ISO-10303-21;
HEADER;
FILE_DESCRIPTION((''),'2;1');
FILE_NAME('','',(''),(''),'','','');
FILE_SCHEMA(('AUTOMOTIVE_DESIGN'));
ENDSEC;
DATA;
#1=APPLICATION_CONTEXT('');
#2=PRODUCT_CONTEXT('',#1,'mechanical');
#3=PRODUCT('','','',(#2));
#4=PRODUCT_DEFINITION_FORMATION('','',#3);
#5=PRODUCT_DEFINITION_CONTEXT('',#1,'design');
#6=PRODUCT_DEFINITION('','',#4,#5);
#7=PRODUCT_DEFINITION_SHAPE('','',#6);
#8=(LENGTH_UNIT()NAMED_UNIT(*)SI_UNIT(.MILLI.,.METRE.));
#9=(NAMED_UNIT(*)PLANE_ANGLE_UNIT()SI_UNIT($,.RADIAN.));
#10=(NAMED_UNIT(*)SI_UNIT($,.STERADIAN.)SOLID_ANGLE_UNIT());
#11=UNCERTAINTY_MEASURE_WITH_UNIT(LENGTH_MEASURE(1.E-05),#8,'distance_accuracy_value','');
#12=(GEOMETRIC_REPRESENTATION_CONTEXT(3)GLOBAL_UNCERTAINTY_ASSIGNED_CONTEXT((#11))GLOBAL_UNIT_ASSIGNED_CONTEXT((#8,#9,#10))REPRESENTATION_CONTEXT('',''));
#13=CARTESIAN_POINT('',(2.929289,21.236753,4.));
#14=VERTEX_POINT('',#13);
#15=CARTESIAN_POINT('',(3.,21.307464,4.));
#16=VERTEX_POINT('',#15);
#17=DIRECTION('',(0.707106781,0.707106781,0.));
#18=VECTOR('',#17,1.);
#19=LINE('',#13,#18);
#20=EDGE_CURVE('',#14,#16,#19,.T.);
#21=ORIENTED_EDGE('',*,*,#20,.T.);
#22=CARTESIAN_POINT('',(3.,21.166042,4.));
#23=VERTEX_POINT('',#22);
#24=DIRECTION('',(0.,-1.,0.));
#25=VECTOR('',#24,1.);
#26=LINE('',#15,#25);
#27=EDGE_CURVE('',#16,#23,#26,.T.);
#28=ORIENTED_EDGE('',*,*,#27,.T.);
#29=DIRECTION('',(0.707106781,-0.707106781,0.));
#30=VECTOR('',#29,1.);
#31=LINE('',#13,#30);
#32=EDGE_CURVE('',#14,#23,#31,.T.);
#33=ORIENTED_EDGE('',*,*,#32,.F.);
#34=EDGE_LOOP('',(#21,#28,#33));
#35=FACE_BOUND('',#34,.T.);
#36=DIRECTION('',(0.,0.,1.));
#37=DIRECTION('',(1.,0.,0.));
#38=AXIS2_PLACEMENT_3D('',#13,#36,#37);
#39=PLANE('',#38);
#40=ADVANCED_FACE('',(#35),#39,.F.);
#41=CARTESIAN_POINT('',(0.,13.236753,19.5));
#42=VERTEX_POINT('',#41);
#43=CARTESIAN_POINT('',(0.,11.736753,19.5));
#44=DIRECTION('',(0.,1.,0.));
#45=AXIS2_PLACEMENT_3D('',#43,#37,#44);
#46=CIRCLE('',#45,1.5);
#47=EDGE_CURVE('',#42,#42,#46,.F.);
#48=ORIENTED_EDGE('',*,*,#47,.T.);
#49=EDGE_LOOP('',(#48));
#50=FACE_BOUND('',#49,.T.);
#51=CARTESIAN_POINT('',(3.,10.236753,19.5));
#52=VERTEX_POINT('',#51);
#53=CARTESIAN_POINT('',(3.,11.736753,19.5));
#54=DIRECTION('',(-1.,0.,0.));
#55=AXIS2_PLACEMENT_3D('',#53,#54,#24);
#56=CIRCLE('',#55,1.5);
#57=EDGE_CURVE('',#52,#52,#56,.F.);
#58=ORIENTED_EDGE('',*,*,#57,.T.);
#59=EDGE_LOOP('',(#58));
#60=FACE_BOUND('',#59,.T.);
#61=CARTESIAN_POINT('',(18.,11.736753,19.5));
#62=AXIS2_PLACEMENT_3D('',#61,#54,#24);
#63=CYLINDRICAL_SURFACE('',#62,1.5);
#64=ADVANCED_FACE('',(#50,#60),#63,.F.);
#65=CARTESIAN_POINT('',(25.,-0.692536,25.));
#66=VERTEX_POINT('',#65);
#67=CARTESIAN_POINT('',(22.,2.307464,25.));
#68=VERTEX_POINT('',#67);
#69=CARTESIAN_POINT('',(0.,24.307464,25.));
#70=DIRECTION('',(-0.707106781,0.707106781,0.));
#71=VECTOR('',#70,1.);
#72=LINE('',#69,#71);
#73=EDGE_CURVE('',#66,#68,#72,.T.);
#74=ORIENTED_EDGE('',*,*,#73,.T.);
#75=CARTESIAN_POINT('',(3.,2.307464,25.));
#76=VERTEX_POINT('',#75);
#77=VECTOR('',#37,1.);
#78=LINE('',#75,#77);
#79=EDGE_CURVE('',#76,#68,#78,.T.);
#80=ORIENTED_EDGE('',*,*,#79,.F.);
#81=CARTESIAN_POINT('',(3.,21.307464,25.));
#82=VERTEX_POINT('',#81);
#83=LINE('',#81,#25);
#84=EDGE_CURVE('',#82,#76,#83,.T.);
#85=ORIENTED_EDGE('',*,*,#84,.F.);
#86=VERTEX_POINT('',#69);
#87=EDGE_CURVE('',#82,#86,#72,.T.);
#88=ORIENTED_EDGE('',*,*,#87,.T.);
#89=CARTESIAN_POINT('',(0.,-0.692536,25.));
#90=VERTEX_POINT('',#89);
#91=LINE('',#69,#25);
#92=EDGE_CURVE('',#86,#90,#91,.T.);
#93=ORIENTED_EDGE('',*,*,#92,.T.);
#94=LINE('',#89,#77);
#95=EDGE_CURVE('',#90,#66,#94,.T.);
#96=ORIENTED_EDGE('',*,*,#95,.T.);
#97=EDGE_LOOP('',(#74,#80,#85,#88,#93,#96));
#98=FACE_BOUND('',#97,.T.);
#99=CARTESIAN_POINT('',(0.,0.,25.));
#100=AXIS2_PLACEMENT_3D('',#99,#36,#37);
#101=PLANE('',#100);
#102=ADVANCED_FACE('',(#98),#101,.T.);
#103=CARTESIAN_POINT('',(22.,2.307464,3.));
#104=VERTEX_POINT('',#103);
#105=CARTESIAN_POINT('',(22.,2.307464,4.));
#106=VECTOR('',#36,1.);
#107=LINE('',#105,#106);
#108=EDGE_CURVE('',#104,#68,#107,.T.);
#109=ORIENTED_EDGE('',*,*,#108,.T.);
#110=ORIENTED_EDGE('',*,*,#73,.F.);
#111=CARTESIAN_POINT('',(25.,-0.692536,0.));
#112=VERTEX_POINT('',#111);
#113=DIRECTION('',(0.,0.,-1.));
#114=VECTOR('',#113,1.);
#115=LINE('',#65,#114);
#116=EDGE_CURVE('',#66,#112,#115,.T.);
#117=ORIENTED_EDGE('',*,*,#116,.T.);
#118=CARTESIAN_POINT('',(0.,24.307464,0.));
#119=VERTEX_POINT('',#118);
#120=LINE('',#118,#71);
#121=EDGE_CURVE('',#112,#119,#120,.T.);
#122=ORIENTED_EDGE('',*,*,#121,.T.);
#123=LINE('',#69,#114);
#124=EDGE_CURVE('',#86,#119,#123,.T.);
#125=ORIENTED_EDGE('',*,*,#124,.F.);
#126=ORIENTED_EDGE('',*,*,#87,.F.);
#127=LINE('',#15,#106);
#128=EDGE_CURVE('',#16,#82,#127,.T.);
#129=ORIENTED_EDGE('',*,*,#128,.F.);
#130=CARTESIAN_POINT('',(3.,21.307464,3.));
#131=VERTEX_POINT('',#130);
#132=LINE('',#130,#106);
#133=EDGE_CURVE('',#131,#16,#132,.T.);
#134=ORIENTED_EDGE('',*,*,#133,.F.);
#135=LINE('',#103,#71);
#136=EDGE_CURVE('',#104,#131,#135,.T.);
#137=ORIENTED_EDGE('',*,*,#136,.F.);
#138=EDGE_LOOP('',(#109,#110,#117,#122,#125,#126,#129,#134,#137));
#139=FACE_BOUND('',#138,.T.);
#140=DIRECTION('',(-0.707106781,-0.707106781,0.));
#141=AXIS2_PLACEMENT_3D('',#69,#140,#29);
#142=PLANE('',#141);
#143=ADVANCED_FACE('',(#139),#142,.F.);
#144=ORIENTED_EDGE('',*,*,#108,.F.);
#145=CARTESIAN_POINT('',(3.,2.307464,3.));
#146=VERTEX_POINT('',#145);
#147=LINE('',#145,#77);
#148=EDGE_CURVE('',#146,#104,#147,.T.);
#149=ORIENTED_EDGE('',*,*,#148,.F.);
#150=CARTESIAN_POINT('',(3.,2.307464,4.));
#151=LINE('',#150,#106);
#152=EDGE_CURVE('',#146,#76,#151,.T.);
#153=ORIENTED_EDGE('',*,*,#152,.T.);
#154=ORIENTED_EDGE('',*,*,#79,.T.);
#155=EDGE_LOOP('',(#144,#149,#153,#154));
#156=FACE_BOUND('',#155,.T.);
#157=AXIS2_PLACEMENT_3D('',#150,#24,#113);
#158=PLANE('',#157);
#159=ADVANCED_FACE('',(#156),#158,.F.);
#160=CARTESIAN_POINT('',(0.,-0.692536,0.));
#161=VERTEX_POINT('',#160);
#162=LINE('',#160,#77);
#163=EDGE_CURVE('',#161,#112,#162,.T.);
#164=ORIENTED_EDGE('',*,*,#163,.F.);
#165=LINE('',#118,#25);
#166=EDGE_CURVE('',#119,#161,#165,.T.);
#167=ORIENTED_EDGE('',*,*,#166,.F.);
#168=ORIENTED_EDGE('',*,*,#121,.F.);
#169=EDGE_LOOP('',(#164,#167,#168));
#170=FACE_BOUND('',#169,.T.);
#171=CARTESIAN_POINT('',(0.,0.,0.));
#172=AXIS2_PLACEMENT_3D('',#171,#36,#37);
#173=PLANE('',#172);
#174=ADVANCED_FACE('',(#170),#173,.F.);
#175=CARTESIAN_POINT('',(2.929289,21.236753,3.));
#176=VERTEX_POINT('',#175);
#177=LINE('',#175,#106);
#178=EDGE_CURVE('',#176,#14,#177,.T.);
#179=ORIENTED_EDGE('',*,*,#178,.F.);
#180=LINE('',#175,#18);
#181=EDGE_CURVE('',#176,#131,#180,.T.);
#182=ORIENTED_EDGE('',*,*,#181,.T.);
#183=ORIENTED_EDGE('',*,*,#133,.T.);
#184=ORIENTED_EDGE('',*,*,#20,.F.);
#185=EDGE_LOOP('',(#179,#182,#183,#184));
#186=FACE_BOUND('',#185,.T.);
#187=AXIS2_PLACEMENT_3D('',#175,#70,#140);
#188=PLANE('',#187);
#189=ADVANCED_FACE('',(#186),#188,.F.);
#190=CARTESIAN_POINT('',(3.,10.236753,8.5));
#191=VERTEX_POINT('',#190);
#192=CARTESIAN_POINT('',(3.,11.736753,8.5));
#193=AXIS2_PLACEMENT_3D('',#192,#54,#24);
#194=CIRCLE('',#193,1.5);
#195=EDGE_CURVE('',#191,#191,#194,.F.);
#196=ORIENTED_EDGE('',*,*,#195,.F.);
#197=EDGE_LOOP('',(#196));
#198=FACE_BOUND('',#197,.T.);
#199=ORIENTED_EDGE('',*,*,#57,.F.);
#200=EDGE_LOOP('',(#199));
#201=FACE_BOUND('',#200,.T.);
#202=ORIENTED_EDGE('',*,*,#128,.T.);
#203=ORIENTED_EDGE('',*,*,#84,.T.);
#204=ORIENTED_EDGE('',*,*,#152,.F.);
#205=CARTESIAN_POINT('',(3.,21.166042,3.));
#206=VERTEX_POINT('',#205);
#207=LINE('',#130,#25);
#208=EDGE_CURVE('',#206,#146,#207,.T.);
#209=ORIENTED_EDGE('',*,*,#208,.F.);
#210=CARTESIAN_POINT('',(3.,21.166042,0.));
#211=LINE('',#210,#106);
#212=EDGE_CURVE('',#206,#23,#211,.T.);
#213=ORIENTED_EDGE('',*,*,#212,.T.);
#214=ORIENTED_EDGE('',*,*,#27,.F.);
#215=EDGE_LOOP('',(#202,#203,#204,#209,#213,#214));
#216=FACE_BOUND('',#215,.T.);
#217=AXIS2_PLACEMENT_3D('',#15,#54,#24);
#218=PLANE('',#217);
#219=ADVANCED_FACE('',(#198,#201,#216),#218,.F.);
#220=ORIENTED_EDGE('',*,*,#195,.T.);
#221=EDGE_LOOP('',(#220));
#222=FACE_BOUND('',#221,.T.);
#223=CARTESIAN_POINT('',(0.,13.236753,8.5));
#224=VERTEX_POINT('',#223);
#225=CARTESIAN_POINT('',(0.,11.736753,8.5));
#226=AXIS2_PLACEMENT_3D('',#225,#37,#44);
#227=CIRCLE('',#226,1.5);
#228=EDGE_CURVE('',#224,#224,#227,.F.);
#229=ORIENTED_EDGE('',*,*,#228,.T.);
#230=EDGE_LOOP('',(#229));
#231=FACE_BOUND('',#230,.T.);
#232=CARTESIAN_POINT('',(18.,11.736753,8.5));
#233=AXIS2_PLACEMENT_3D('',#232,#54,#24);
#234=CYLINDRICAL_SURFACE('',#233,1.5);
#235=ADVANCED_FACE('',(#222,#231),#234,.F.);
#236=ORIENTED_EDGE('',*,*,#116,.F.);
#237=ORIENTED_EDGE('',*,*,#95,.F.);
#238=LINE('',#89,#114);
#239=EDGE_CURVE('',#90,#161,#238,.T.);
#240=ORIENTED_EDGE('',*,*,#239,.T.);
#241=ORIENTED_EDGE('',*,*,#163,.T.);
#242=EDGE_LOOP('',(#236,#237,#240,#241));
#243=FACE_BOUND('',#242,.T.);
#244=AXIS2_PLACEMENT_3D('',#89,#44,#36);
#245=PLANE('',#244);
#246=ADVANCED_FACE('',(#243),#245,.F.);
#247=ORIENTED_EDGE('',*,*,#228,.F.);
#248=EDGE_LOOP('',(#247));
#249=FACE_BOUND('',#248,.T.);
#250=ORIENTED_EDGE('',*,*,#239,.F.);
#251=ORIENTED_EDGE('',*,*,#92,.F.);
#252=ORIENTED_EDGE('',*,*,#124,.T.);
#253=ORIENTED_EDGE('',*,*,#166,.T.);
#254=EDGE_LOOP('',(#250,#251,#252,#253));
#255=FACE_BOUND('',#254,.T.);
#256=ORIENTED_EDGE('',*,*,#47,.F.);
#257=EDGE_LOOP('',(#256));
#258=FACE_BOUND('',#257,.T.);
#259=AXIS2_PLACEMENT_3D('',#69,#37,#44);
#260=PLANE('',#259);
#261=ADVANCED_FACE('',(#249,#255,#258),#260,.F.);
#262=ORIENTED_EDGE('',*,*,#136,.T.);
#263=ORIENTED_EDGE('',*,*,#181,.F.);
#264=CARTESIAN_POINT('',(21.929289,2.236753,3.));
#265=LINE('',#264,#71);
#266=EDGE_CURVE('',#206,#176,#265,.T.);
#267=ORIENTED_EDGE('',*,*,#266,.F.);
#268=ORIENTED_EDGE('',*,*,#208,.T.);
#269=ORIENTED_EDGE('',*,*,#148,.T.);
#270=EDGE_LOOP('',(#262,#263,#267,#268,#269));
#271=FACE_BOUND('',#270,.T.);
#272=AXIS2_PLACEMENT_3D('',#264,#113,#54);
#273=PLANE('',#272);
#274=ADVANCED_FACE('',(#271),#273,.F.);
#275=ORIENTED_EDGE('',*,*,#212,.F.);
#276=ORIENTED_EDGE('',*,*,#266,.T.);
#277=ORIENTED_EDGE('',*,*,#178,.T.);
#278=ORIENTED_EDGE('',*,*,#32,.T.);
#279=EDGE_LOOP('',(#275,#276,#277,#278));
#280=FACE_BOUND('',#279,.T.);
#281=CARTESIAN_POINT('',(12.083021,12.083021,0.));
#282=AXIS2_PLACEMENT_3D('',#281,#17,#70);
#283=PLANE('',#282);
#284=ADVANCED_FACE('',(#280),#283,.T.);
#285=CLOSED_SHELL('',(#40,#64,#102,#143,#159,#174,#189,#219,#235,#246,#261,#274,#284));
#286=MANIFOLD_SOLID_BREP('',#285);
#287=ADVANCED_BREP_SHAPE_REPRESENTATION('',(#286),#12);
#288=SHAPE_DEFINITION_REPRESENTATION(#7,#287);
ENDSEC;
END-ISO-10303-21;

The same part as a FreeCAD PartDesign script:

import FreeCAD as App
import Part
import Sketcher

V = App.Vector


def add_polygon(sketch, points):
    """Adds a closed chain of lines whose ends are joined by coincident constraints."""
    first, n = sketch.GeometryCount, len(points)
    for a, b in zip(points, points[1:] + points[:1]):
        sketch.addGeometry(Part.LineSegment(App.Vector(*a, 0), App.Vector(*b, 0)), False)
    for i in range(n):
        sketch.addConstraint(Sketcher.Constraint("Coincident", first + i, 2, first + (i + 1) % n, 1))

doc = App.newDocument("Part")
body = doc.addObject("PartDesign::Body", "Body")

sketch1 = body.newObject("Sketcher::SketchObject", "Sketch")
sketch1.AttachmentSupport = (doc.getObject("XY_Plane"), [""])
sketch1.MapMode = "FlatFace"
add_polygon(sketch1, [(0, 24.307464), (0, -0.692536), (25, -0.692536)])
sketch1.addConstraint([
    Sketcher.Constraint("Vertical", 0),
    Sketcher.Constraint("Horizontal", 1),
    Sketcher.Constraint("PointOnObject", 0, 2, -2),
    Sketcher.Constraint("Equal", 1, 0),
    Sketcher.Constraint("DistanceX", 1, 1, 1, 2, 25.0),
    Sketcher.Constraint("DistanceY", 0, 2, -1, 1, 0.692536),
])
pad1 = body.newObject("PartDesign::Pad", "Pad")
pad1.Profile = sketch1
pad1.Length = 25

sketch2 = body.newObject("Sketcher::SketchObject", "Sketch001")
sketch2.AttachmentSupport = (doc.getObject("XY_Plane"), [""])
sketch2.MapMode = "FlatFace"
sketch2.AttachmentOffset = App.Placement(V(0, 0, 25), App.Rotation())
add_polygon(sketch2, [(3, 21.307464), (3, 2.307464), (22, 2.307464)])
sketch2.addConstraint([
    Sketcher.Constraint("Vertical", 0),
    Sketcher.Constraint("Horizontal", 1),
    Sketcher.Constraint("Equal", 1, 0),
    Sketcher.Constraint("DistanceX", 1, 1, 1, 2, 19.0),
    Sketcher.Constraint("DistanceX", -1, 1, 0, 2, 3.0),
    Sketcher.Constraint("DistanceY", -1, 1, 0, 2, 2.307464),
])
pocket1 = body.newObject("PartDesign::Pocket", "Pocket")
pocket1.Profile = sketch2
pocket1.Length = 21

sketch3 = body.newObject("Sketcher::SketchObject", "Sketch002")
sketch3.Placement = App.Placement(V(12.153732, 12.153732, 0), App.Rotation(V(0.707106781, -0.707106781, 0), V(0, 0, -0.999999999), V(0.707106781, 0.707106781, 0), "ZXY"))
add_polygon(sketch3, [(-12.945332, -3), (-12.945332, -4), (13.924726, -4), (13.924726, -3)])
sketch3.addConstraint([
    Sketcher.Constraint("Vertical", 0),
    Sketcher.Constraint("Horizontal", 1),
    Sketcher.Constraint("Vertical", 2),
    Sketcher.Constraint("Horizontal", 3),
    Sketcher.Constraint("DistanceY", 0, 2, 0, 1, 1.0),
    Sketcher.Constraint("DistanceY", 0, 2, -1, 1, 4.0),
    Sketcher.Constraint("DistanceX", 1, 1, 1, 2, 26.870058),
    Sketcher.Constraint("DistanceX", 0, 2, -1, 1, 12.945332),
])
pocket2 = body.newObject("PartDesign::Pocket", "Pocket001")
pocket2.Profile = sketch3
pocket2.Length = 0.1

sketch4 = body.newObject("Sketcher::SketchObject", "Sketch003")
sketch4.AttachmentSupport = (doc.getObject("XY_Plane"), [""])
sketch4.MapMode = "FlatFace"
sketch4.AttachmentOffset = App.Placement(V(0, 0, 4), App.Rotation())
add_polygon(sketch4, [(3, 21.307464), (3, 2.307464), (22, 2.307464)])
sketch4.addConstraint([
    Sketcher.Constraint("Vertical", 0),
    Sketcher.Constraint("Horizontal", 1),
    Sketcher.Constraint("Equal", 1, 0),
    Sketcher.Constraint("DistanceX", 1, 1, 1, 2, 19.0),
    Sketcher.Constraint("DistanceX", -1, 1, 0, 2, 3.0),
    Sketcher.Constraint("DistanceY", -1, 1, 0, 2, 2.307464),
])
pocket3 = body.newObject("PartDesign::Pocket", "Pocket002")
pocket3.Profile = sketch4
pocket3.Length = 1

sketch5 = body.newObject("Sketcher::SketchObject", "Sketch004")
sketch5.AttachmentSupport = (doc.getObject("XY_Plane"), [""])
sketch5.MapMode = "FlatFace"
sketch5.AttachmentOffset = App.Placement(V(0, 0, 3), App.Rotation())
add_polygon(sketch5, [(22, 2.307464), (21.858579, 2.307464), (21.929289, 2.236753)])
sketch5.addConstraint([
    Sketcher.Constraint("Horizontal", 0),
    Sketcher.Constraint("Perpendicular", 1, 2),
    Sketcher.Constraint("Equal", 1, 2),
    Sketcher.Constraint("DistanceX", -1, 1, 2, 2, 22.0),
    Sketcher.Constraint("Distance", 1, 0.1),
    Sketcher.Constraint("DistanceY", -1, 1, 0, 2, 2.307464),
])
pad2 = body.newObject("PartDesign::Pad", "Pad001")
pad2.Profile = sketch5
pad2.Length = 1

sketch6 = body.newObject("Sketcher::SketchObject", "Sketch005")
sketch6.AttachmentSupport = (doc.getObject("YZ_Plane"), [""])
sketch6.MapMode = "FlatFace"
sketch6.AttachmentOffset = App.Placement(V(0, 0, 3), App.Rotation())
sketch6.addGeometry([
    Part.Circle(V(11.736753, 8.5, 0), V(0, 0, 1), 1.5),
    Part.Circle(V(11.736753, 19.5, 0), V(0, 0, 1), 1.5),
], False)
sketch6.addConstraint([
    Sketcher.Constraint("Equal", 0, 1),
    Sketcher.Constraint("Vertical", 0, 3, 1, 3),
    Sketcher.Constraint("Diameter", 0, 3.0),
    Sketcher.Constraint("DistanceY", 0, 3, 1, 3, 11.0),
    Sketcher.Constraint("DistanceY", -1, 1, 0, 3, 8.5),
    Sketcher.Constraint("DistanceX", -1, 1, 0, 3, 11.736753),
])
pocket4 = body.newObject("PartDesign::Pocket", "Pocket003")
pocket4.Profile = sketch6
pocket4.Type = "ThroughAll"
pocket4.Midplane = True

doc.recompute()
